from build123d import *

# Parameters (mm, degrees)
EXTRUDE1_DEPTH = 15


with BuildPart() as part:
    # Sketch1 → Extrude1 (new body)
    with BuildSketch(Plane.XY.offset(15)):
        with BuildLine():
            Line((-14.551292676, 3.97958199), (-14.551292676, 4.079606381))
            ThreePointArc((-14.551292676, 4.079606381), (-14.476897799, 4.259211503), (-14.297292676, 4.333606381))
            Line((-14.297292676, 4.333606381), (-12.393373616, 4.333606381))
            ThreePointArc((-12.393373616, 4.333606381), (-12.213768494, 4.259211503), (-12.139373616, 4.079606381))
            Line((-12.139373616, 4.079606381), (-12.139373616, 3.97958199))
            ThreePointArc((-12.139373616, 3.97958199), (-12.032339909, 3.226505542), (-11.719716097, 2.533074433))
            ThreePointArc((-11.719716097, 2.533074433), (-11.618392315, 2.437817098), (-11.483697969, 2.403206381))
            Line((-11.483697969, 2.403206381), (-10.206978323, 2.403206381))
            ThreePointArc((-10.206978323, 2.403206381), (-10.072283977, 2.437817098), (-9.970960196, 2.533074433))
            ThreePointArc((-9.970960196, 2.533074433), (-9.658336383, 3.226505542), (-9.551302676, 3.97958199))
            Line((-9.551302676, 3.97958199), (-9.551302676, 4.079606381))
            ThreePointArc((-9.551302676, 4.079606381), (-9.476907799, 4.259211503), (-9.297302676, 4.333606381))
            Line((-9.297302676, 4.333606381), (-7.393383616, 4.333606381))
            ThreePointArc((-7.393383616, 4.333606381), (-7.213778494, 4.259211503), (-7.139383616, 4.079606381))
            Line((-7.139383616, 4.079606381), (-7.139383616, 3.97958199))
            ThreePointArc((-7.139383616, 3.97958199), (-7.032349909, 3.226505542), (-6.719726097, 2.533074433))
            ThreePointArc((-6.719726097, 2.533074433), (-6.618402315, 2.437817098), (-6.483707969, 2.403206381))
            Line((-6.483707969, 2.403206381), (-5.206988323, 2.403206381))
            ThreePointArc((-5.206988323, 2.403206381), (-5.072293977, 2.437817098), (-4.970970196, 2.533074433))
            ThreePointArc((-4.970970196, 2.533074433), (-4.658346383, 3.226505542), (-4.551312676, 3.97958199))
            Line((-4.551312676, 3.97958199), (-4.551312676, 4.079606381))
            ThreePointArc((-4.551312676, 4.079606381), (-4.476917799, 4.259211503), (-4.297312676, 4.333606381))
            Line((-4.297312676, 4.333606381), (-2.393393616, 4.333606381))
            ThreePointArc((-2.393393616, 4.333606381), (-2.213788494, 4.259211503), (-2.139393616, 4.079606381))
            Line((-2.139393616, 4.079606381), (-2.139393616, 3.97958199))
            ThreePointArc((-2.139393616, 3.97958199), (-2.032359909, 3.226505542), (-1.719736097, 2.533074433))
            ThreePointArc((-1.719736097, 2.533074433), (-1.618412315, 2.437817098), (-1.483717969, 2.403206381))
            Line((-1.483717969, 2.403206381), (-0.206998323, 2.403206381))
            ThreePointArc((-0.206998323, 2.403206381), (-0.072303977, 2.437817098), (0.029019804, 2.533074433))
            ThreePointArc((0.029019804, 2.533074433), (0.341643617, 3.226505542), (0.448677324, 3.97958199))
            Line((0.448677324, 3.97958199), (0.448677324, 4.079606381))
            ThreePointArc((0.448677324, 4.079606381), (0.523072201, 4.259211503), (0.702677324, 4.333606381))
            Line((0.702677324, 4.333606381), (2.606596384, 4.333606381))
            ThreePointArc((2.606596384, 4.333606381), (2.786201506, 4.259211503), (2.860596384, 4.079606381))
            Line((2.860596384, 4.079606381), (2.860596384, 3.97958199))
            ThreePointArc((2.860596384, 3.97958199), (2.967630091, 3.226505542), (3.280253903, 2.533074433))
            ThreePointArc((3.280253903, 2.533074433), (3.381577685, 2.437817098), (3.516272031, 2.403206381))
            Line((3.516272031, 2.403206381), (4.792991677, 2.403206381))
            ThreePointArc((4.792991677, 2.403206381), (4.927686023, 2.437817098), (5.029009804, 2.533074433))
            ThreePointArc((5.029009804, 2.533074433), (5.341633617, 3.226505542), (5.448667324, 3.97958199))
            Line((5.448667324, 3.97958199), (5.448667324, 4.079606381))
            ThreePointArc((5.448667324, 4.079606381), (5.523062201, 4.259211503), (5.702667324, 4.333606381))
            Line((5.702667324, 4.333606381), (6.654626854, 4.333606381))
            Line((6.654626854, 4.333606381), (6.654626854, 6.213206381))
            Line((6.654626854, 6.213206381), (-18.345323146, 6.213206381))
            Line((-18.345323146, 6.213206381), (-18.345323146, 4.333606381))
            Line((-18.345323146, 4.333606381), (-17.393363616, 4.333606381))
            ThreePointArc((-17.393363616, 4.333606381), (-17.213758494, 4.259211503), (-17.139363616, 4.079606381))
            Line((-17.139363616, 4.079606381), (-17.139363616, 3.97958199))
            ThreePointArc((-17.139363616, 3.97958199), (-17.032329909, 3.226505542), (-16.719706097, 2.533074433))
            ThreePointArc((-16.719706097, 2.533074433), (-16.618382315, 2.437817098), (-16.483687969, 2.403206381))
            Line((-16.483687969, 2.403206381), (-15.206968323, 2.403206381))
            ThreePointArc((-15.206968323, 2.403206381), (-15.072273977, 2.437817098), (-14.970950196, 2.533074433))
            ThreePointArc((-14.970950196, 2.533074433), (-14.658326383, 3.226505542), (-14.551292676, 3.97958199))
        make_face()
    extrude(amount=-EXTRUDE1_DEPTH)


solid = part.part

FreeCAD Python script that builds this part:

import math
import FreeCAD as App
import Part
import Sketcher
from FreeCAD import Vector
Q = App.Units.Quantity

doc = App.newDocument("Part")
body = doc.addObject("PartDesign::Body", "Body")

sketch1 = body.newObject("Sketcher::SketchObject", "Sketch")
sketch1.AttachmentSupport = (doc.getObject("XY_Plane"), [""])
sketch1.MapMode = "FlatFace"
sketch1.AttachmentOffset = App.Placement(Vector(0, 0, 15), App.Rotation())
sketch1.addGeometry([
    Part.LineSegment(Vector(-14.551293, 3.979582, 0), Vector(-14.551293, 4.079606, 0)),
    Part.ArcOfCircle(Part.Circle(Vector(-14.297293, 4.079606, 0), Vector(0, 0, 1), 0.254), math.radians(90), math.radians(180)),
    Part.LineSegment(Vector(-14.297293, 4.333606, 0), Vector(-12.393374, 4.333606, 0)),
    Part.ArcOfCircle(Part.Circle(Vector(-12.393374, 4.079606, 0), Vector(0, 0, 1), 0.254), math.radians(0), math.radians(90)),
    Part.LineSegment(Vector(-12.139374, 4.079606, 0), Vector(-12.139374, 3.979582, 0)),
    Part.ArcOfCircle(Part.Circle(Vector(-9.436579, 3.979582, 0), Vector(0, 0, 1), 2.702795), math.radians(180), math.radians(212.356764)),
    Part.ArcOfCircle(Part.Circle(Vector(-11.483698, 2.682606, 0), Vector(0, 0, 1), 0.2794), math.radians(-147.643235), math.radians(-90)),
    Part.LineSegment(Vector(-11.483698, 2.403206, 0), Vector(-10.206978, 2.403206, 0)),
    Part.ArcOfCircle(Part.Circle(Vector(-10.206978, 2.682606, 0), Vector(0, 0, 1), 0.2794), math.radians(-90), math.radians(-32.356764)),
    Part.ArcOfCircle(Part.Circle(Vector(-12.254098, 3.979582, 0), Vector(0, 0, 1), 2.702795), math.radians(-32.356764), math.radians(0)),
    Part.LineSegment(Vector(-9.551303, 3.979582, 0), Vector(-9.551303, 4.079606, 0)),
    Part.ArcOfCircle(Part.Circle(Vector(-9.297303, 4.079606, 0), Vector(0, 0, 1), 0.254), math.radians(90), math.radians(180)),
    Part.LineSegment(Vector(-9.297303, 4.333606, 0), Vector(-7.393384, 4.333606, 0)),
    Part.ArcOfCircle(Part.Circle(Vector(-7.393384, 4.079606, 0), Vector(0, 0, 1), 0.254), math.radians(0), math.radians(90)),
    Part.LineSegment(Vector(-7.139384, 4.079606, 0), Vector(-7.139384, 3.979582, 0)),
    Part.ArcOfCircle(Part.Circle(Vector(-4.436589, 3.979582, 0), Vector(0, 0, 1), 2.702795), math.radians(180), math.radians(212.356764)),
    Part.ArcOfCircle(Part.Circle(Vector(-6.483708, 2.682606, 0), Vector(0, 0, 1), 0.2794), math.radians(-147.643235), math.radians(-90)),
    Part.LineSegment(Vector(-6.483708, 2.403206, 0), Vector(-5.206988, 2.403206, 0)),
    Part.ArcOfCircle(Part.Circle(Vector(-5.206988, 2.682606, 0), Vector(0, 0, 1), 0.2794), math.radians(-90), math.radians(-32.356764)),
    Part.ArcOfCircle(Part.Circle(Vector(-7.254108, 3.979582, 0), Vector(0, 0, 1), 2.702795), math.radians(-32.356764), math.radians(0)),
    Part.LineSegment(Vector(-4.551313, 3.979582, 0), Vector(-4.551313, 4.079606, 0)),
    Part.ArcOfCircle(Part.Circle(Vector(-4.297313, 4.079606, 0), Vector(0, 0, 1), 0.254), math.radians(90), math.radians(180)),
    Part.LineSegment(Vector(-4.297313, 4.333606, 0), Vector(-2.393394, 4.333606, 0)),
    Part.ArcOfCircle(Part.Circle(Vector(-2.393394, 4.079606, 0), Vector(0, 0, 1), 0.254), math.radians(0), math.radians(90)),
    Part.LineSegment(Vector(-2.139394, 4.079606, 0), Vector(-2.139394, 3.979582, 0)),
    Part.ArcOfCircle(Part.Circle(Vector(0.563401, 3.979582, 0), Vector(0, 0, 1), 2.702795), math.radians(180), math.radians(212.356764)),
    Part.ArcOfCircle(Part.Circle(Vector(-1.483718, 2.682606, 0), Vector(0, 0, 1), 0.2794), math.radians(-147.643235), math.radians(-90)),
    Part.LineSegment(Vector(-1.483718, 2.403206, 0), Vector(-0.206998, 2.403206, 0)),
    Part.ArcOfCircle(Part.Circle(Vector(-0.206998, 2.682606, 0), Vector(0, 0, 1), 0.2794), math.radians(-90), math.radians(-32.356764)),
    Part.ArcOfCircle(Part.Circle(Vector(-2.254118, 3.979582, 0), Vector(0, 0, 1), 2.702795), math.radians(-32.356764), math.radians(0)),
    Part.LineSegment(Vector(0.448677, 3.979582, 0), Vector(0.448677, 4.079606, 0)),
    Part.ArcOfCircle(Part.Circle(Vector(0.702677, 4.079606, 0), Vector(0, 0, 1), 0.254), math.radians(90), math.radians(180)),
    Part.LineSegment(Vector(0.702677, 4.333606, 0), Vector(2.606596, 4.333606, 0)),
    Part.ArcOfCircle(Part.Circle(Vector(2.606596, 4.079606, 0), Vector(0, 0, 1), 0.254), math.radians(0), math.radians(90)),
    Part.LineSegment(Vector(2.860596, 4.079606, 0), Vector(2.860596, 3.979582, 0)),
    Part.ArcOfCircle(Part.Circle(Vector(5.563391, 3.979582, 0), Vector(0, 0, 1), 2.702795), math.radians(180), math.radians(212.356764)),
    Part.ArcOfCircle(Part.Circle(Vector(3.516272, 2.682606, 0), Vector(0, 0, 1), 0.2794), math.radians(-147.643235), math.radians(-90)),
    Part.LineSegment(Vector(3.516272, 2.403206, 0), Vector(4.792992, 2.403206, 0)),
    Part.ArcOfCircle(Part.Circle(Vector(4.792992, 2.682606, 0), Vector(0, 0, 1), 0.2794), math.radians(-90), math.radians(-32.356764)),
    Part.ArcOfCircle(Part.Circle(Vector(2.745872, 3.979582, 0), Vector(0, 0, 1), 2.702795), math.radians(-32.356764), math.radians(0)),
    Part.LineSegment(Vector(5.448667, 3.979582, 0), Vector(5.448667, 4.079606, 0)),
    Part.ArcOfCircle(Part.Circle(Vector(5.702667, 4.079606, 0), Vector(0, 0, 1), 0.254), math.radians(90), math.radians(180)),
    Part.LineSegment(Vector(5.702667, 4.333606, 0), Vector(6.654627, 4.333606, 0)),
    Part.LineSegment(Vector(6.654627, 4.333606, 0), Vector(6.654627, 6.213206, 0)),
    Part.LineSegment(Vector(6.654627, 6.213206, 0), Vector(-18.345323, 6.213206, 0)),
    Part.LineSegment(Vector(-18.345323, 6.213206, 0), Vector(-18.345323, 4.333606, 0)),
    Part.LineSegment(Vector(-18.345323, 4.333606, 0), Vector(-17.393364, 4.333606, 0)),
    Part.ArcOfCircle(Part.Circle(Vector(-17.393364, 4.079606, 0), Vector(0, 0, 1), 0.254), math.radians(0), math.radians(90)),
    Part.LineSegment(Vector(-17.139364, 4.079606, 0), Vector(-17.139364, 3.979582, 0)),
    Part.ArcOfCircle(Part.Circle(Vector(-14.436569, 3.979582, 0), Vector(0, 0, 1), 2.702795), math.radians(180), math.radians(212.356764)),
    Part.ArcOfCircle(Part.Circle(Vector(-16.483688, 2.682606, 0), Vector(0, 0, 1), 0.2794), math.radians(-147.643235), math.radians(-90)),
    Part.LineSegment(Vector(-16.483688, 2.403206, 0), Vector(-15.206968, 2.403206, 0)),
    Part.ArcOfCircle(Part.Circle(Vector(-15.206968, 2.682606, 0), Vector(0, 0, 1), 0.2794), math.radians(-90), math.radians(-32.356764)),
    Part.ArcOfCircle(Part.Circle(Vector(-17.254088, 3.979582, 0), Vector(0, 0, 1), 2.702795), math.radians(-32.356764), math.radians(0)),
], False)
sketch1.addConstraint([
    Sketcher.Constraint("Tangent", 0, 2, 1, 2),
    Sketcher.Constraint("Tangent", 1, 1, 2, 1),
    Sketcher.Constraint("Tangent", 2, 2, 3, 2),
    Sketcher.Constraint("Tangent", 3, 1, 4, 1),
    Sketcher.Constraint("Tangent", 4, 2, 5, 1),
    Sketcher.Constraint("Tangent", 5, 2, 6, 1),
    Sketcher.Constraint("Tangent", 6, 2, 7, 1),
    Sketcher.Constraint("Tangent", 7, 2, 8, 1),
    Sketcher.Constraint("Tangent", 8, 2, 9, 1),
    Sketcher.Constraint("Tangent", 9, 2, 10, 1),
    Sketcher.Constraint("Tangent", 10, 2, 11, 2),
    Sketcher.Constraint("Tangent", 11, 1, 12, 1),
    Sketcher.Constraint("Tangent", 12, 2, 13, 2),
    Sketcher.Constraint("Tangent", 13, 1, 14, 1),
    Sketcher.Constraint("Tangent", 14, 2, 15, 1),
    Sketcher.Constraint("Tangent", 15, 2, 16, 1),
    Sketcher.Constraint("Tangent", 16, 2, 17, 1),
    Sketcher.Constraint("Tangent", 17, 2, 18, 1),
    Sketcher.Constraint("Tangent", 18, 2, 19, 1),
    Sketcher.Constraint("Tangent", 19, 2, 20, 1),
    Sketcher.Constraint("Tangent", 20, 2, 21, 2),
    Sketcher.Constraint("Tangent", 21, 1, 22, 1),
    Sketcher.Constraint("Tangent", 22, 2, 23, 2),
    Sketcher.Constraint("Tangent", 23, 1, 24, 1),
    Sketcher.Constraint("Tangent", 24, 2, 25, 1),
    Sketcher.Constraint("Tangent", 25, 2, 26, 1),
    Sketcher.Constraint("Tangent", 26, 2, 27, 1),
    Sketcher.Constraint("Tangent", 27, 2, 28, 1),
    Sketcher.Constraint("Tangent", 28, 2, 29, 1),
    Sketcher.Constraint("Tangent", 29, 2, 30, 1),
    Sketcher.Constraint("Tangent", 30, 2, 31, 2),
    Sketcher.Constraint("Tangent", 31, 1, 32, 1),
    Sketcher.Constraint("Tangent", 32, 2, 33, 2),
    Sketcher.Constraint("Tangent", 33, 1, 34, 1),
    Sketcher.Constraint("Tangent", 34, 2, 35, 1),
    Sketcher.Constraint("Tangent", 35, 2, 36, 1),
    Sketcher.Constraint("Tangent", 36, 2, 37, 1),
    Sketcher.Constraint("Tangent", 37, 2, 38, 1),
    Sketcher.Constraint("Tangent", 38, 2, 39, 1),
    Sketcher.Constraint("Tangent", 39, 2, 40, 1),
    Sketcher.Constraint("Tangent", 40, 2, 41, 2),
    Sketcher.Constraint("Tangent", 41, 1, 42, 1),
    Sketcher.Constraint("Coincident", 42, 2, 43, 1),
    Sketcher.Constraint("Coincident", 43, 2, 44, 1),
    Sketcher.Constraint("Coincident", 44, 2, 45, 1),
    Sketcher.Constraint("Coincident", 45, 2, 46, 1),
    Sketcher.Constraint("Tangent", 46, 2, 47, 2),
    Sketcher.Constraint("Tangent", 47, 1, 48, 1),
    Sketcher.Constraint("Tangent", 48, 2, 49, 1),
    Sketcher.Constraint("Tangent", 49, 2, 50, 1),
    Sketcher.Constraint("Tangent", 50, 2, 51, 1),
    Sketcher.Constraint("Tangent", 51, 2, 52, 1),
    Sketcher.Constraint("Tangent", 52, 2, 53, 1),
    Sketcher.Constraint("Tangent", 53, 2, 0, 1),
    Sketcher.Constraint("Vertical", 0),
    Sketcher.Constraint("Horizontal", 2),
    Sketcher.Constraint("Vertical", 4),
    Sketcher.Constraint("Horizontal", 7),
    Sketcher.Constraint("Vertical", 10),
    Sketcher.Constraint("Horizontal", 12),
    Sketcher.Constraint("Vertical", 14),
    Sketcher.Constraint("Horizontal", 17),
    Sketcher.Constraint("Vertical", 20),
    Sketcher.Constraint("Horizontal", 22),
    Sketcher.Constraint("Vertical", 24),
    Sketcher.Constraint("Horizontal", 27),
    Sketcher.Constraint("Vertical", 30),
    Sketcher.Constraint("Horizontal", 32),
    Sketcher.Constraint("Vertical", 34),
    Sketcher.Constraint("Horizontal", 37),
    Sketcher.Constraint("Vertical", 40),
    Sketcher.Constraint("Horizontal", 42),
    Sketcher.Constraint("Vertical", 43),
    Sketcher.Constraint("Horizontal", 44),
    Sketcher.Constraint("Vertical", 45),
    Sketcher.Constraint("Horizontal", 46),
    Sketcher.Constraint("Vertical", 48),
    Sketcher.Constraint("Horizontal", 51),
    Sketcher.Constraint("Equal", 1, 3),
    Sketcher.Constraint("Equal", 6, 8),
    Sketcher.Constraint("Equal", 5, 9),
    Sketcher.Constraint("Equal", 3, 11),
    Sketcher.Constraint("Equal", 11, 13),
    Sketcher.Constraint("Equal", 9, 15),
    Sketcher.Constraint("Equal", 8, 16),
    Sketcher.Constraint("Equal", 16, 18),
    Sketcher.Constraint("Equal", 15, 19),
    Sketcher.Constraint("Equal", 13, 21),
    Sketcher.Constraint("Equal", 21, 23),
    Sketcher.Constraint("Equal", 19, 25),
    Sketcher.Constraint("Equal", 18, 26),
    Sketcher.Constraint("Equal", 26, 28),
    Sketcher.Constraint("Equal", 25, 29),
    Sketcher.Constraint("Equal", 23, 31),
    Sketcher.Constraint("Equal", 31, 33),
    Sketcher.Constraint("Equal", 29, 35),
    Sketcher.Constraint("Equal", 28, 36),
    Sketcher.Constraint("Equal", 36, 38),
    Sketcher.Constraint("Equal", 35, 39),
    Sketcher.Constraint("Equal", 33, 41),
    Sketcher.Constraint("Equal", 41, 47),
    Sketcher.Constraint("Equal", 39, 49),
    Sketcher.Constraint("Equal", 38, 50),
    Sketcher.Constraint("Equal", 50, 52),
    Sketcher.Constraint("Equal", 49, 53),
    Sketcher.Constraint("Horizontal", 5, 3, 9, 3),
    Sketcher.Constraint("Horizontal", 3, 3, 11, 3),
    Sketcher.Constraint("Horizontal", 9, 3, 15, 3),
    Sketcher.Constraint("Horizontal", 8, 3, 16, 3),
    Sketcher.Constraint("Horizontal", 15, 3, 19, 3),
    Sketcher.Constraint("Horizontal", 13, 3, 21, 3),
    Sketcher.Constraint("Horizontal", 19, 3, 25, 3),
    Sketcher.Constraint("Horizontal", 18, 3, 26, 3),
    Sketcher.Constraint("Horizontal", 25, 3, 29, 3),
    Sketcher.Constraint("Horizontal", 23, 3, 31, 3),
    Sketcher.Constraint("Horizontal", 29, 3, 35, 3),
    Sketcher.Constraint("Horizontal", 28, 3, 36, 3),
    Sketcher.Constraint("Horizontal", 35, 3, 39, 3),
    Sketcher.Constraint("Horizontal", 33, 3, 41, 3),
    Sketcher.Constraint("Horizontal", 41, 3, 47, 3),
    Sketcher.Constraint("Horizontal", 39, 3, 49, 3),
    Sketcher.Constraint("Horizontal", 38, 3, 50, 3),
    Sketcher.Constraint("Horizontal", 49, 3, 53, 3),
    Sketcher.Constraint("Equal", 2, 12),
    Sketcher.Constraint("Equal", 7, 17),
    Sketcher.Constraint("Equal", 12, 22),
    Sketcher.Constraint("Equal", 17, 27),
    Sketcher.Constraint("Equal", 22, 32),
    Sketcher.Constraint("Equal", 27, 37),
    Sketcher.Constraint("Equal", 42, 46),
    Sketcher.Constraint("Equal", 37, 51),
    Sketcher.Constraint("Radius", 1, Q("0.01 in")),
    Sketcher.Constraint("Radius", 6, Q("0.011 in")),
    Sketcher.Constraint("DistanceY", 43, 1, 43, 2, Q("0.074 in")),
    Sketcher.Constraint("Radius", 5, Q("2.702795 mm")),
    Sketcher.Constraint("DistanceX", 2, 1, 2, 2, Q("1.903919 mm")),
    Sketcher.Constraint("DistanceX", 7, 1, 7, 2, Q("1.27672 mm")),
    Sketcher.Constraint("DistanceX", 42, 1, 42, 2, Q("0.95196 mm")),
    Sketcher.Constraint("DistanceX", 44, 2, 44, 1, Q("24.99995 mm")),
    Sketcher.Constraint("DistanceX", -1, 1, 25, 3, Q("0.563401 mm")),
    Sketcher.Constraint("DistanceY", 0, 1, 0, 2, Q("0.100024 mm")),
    Sketcher.Constraint("DistanceY", -1, 1, 5, 3, Q("3.979582 mm")),
])
pad1 = body.newObject("PartDesign::Pad", "Pad")
pad1.Profile = sketch1
pad1.Length = 15
pad1.Reversed = True

doc.recompute()
